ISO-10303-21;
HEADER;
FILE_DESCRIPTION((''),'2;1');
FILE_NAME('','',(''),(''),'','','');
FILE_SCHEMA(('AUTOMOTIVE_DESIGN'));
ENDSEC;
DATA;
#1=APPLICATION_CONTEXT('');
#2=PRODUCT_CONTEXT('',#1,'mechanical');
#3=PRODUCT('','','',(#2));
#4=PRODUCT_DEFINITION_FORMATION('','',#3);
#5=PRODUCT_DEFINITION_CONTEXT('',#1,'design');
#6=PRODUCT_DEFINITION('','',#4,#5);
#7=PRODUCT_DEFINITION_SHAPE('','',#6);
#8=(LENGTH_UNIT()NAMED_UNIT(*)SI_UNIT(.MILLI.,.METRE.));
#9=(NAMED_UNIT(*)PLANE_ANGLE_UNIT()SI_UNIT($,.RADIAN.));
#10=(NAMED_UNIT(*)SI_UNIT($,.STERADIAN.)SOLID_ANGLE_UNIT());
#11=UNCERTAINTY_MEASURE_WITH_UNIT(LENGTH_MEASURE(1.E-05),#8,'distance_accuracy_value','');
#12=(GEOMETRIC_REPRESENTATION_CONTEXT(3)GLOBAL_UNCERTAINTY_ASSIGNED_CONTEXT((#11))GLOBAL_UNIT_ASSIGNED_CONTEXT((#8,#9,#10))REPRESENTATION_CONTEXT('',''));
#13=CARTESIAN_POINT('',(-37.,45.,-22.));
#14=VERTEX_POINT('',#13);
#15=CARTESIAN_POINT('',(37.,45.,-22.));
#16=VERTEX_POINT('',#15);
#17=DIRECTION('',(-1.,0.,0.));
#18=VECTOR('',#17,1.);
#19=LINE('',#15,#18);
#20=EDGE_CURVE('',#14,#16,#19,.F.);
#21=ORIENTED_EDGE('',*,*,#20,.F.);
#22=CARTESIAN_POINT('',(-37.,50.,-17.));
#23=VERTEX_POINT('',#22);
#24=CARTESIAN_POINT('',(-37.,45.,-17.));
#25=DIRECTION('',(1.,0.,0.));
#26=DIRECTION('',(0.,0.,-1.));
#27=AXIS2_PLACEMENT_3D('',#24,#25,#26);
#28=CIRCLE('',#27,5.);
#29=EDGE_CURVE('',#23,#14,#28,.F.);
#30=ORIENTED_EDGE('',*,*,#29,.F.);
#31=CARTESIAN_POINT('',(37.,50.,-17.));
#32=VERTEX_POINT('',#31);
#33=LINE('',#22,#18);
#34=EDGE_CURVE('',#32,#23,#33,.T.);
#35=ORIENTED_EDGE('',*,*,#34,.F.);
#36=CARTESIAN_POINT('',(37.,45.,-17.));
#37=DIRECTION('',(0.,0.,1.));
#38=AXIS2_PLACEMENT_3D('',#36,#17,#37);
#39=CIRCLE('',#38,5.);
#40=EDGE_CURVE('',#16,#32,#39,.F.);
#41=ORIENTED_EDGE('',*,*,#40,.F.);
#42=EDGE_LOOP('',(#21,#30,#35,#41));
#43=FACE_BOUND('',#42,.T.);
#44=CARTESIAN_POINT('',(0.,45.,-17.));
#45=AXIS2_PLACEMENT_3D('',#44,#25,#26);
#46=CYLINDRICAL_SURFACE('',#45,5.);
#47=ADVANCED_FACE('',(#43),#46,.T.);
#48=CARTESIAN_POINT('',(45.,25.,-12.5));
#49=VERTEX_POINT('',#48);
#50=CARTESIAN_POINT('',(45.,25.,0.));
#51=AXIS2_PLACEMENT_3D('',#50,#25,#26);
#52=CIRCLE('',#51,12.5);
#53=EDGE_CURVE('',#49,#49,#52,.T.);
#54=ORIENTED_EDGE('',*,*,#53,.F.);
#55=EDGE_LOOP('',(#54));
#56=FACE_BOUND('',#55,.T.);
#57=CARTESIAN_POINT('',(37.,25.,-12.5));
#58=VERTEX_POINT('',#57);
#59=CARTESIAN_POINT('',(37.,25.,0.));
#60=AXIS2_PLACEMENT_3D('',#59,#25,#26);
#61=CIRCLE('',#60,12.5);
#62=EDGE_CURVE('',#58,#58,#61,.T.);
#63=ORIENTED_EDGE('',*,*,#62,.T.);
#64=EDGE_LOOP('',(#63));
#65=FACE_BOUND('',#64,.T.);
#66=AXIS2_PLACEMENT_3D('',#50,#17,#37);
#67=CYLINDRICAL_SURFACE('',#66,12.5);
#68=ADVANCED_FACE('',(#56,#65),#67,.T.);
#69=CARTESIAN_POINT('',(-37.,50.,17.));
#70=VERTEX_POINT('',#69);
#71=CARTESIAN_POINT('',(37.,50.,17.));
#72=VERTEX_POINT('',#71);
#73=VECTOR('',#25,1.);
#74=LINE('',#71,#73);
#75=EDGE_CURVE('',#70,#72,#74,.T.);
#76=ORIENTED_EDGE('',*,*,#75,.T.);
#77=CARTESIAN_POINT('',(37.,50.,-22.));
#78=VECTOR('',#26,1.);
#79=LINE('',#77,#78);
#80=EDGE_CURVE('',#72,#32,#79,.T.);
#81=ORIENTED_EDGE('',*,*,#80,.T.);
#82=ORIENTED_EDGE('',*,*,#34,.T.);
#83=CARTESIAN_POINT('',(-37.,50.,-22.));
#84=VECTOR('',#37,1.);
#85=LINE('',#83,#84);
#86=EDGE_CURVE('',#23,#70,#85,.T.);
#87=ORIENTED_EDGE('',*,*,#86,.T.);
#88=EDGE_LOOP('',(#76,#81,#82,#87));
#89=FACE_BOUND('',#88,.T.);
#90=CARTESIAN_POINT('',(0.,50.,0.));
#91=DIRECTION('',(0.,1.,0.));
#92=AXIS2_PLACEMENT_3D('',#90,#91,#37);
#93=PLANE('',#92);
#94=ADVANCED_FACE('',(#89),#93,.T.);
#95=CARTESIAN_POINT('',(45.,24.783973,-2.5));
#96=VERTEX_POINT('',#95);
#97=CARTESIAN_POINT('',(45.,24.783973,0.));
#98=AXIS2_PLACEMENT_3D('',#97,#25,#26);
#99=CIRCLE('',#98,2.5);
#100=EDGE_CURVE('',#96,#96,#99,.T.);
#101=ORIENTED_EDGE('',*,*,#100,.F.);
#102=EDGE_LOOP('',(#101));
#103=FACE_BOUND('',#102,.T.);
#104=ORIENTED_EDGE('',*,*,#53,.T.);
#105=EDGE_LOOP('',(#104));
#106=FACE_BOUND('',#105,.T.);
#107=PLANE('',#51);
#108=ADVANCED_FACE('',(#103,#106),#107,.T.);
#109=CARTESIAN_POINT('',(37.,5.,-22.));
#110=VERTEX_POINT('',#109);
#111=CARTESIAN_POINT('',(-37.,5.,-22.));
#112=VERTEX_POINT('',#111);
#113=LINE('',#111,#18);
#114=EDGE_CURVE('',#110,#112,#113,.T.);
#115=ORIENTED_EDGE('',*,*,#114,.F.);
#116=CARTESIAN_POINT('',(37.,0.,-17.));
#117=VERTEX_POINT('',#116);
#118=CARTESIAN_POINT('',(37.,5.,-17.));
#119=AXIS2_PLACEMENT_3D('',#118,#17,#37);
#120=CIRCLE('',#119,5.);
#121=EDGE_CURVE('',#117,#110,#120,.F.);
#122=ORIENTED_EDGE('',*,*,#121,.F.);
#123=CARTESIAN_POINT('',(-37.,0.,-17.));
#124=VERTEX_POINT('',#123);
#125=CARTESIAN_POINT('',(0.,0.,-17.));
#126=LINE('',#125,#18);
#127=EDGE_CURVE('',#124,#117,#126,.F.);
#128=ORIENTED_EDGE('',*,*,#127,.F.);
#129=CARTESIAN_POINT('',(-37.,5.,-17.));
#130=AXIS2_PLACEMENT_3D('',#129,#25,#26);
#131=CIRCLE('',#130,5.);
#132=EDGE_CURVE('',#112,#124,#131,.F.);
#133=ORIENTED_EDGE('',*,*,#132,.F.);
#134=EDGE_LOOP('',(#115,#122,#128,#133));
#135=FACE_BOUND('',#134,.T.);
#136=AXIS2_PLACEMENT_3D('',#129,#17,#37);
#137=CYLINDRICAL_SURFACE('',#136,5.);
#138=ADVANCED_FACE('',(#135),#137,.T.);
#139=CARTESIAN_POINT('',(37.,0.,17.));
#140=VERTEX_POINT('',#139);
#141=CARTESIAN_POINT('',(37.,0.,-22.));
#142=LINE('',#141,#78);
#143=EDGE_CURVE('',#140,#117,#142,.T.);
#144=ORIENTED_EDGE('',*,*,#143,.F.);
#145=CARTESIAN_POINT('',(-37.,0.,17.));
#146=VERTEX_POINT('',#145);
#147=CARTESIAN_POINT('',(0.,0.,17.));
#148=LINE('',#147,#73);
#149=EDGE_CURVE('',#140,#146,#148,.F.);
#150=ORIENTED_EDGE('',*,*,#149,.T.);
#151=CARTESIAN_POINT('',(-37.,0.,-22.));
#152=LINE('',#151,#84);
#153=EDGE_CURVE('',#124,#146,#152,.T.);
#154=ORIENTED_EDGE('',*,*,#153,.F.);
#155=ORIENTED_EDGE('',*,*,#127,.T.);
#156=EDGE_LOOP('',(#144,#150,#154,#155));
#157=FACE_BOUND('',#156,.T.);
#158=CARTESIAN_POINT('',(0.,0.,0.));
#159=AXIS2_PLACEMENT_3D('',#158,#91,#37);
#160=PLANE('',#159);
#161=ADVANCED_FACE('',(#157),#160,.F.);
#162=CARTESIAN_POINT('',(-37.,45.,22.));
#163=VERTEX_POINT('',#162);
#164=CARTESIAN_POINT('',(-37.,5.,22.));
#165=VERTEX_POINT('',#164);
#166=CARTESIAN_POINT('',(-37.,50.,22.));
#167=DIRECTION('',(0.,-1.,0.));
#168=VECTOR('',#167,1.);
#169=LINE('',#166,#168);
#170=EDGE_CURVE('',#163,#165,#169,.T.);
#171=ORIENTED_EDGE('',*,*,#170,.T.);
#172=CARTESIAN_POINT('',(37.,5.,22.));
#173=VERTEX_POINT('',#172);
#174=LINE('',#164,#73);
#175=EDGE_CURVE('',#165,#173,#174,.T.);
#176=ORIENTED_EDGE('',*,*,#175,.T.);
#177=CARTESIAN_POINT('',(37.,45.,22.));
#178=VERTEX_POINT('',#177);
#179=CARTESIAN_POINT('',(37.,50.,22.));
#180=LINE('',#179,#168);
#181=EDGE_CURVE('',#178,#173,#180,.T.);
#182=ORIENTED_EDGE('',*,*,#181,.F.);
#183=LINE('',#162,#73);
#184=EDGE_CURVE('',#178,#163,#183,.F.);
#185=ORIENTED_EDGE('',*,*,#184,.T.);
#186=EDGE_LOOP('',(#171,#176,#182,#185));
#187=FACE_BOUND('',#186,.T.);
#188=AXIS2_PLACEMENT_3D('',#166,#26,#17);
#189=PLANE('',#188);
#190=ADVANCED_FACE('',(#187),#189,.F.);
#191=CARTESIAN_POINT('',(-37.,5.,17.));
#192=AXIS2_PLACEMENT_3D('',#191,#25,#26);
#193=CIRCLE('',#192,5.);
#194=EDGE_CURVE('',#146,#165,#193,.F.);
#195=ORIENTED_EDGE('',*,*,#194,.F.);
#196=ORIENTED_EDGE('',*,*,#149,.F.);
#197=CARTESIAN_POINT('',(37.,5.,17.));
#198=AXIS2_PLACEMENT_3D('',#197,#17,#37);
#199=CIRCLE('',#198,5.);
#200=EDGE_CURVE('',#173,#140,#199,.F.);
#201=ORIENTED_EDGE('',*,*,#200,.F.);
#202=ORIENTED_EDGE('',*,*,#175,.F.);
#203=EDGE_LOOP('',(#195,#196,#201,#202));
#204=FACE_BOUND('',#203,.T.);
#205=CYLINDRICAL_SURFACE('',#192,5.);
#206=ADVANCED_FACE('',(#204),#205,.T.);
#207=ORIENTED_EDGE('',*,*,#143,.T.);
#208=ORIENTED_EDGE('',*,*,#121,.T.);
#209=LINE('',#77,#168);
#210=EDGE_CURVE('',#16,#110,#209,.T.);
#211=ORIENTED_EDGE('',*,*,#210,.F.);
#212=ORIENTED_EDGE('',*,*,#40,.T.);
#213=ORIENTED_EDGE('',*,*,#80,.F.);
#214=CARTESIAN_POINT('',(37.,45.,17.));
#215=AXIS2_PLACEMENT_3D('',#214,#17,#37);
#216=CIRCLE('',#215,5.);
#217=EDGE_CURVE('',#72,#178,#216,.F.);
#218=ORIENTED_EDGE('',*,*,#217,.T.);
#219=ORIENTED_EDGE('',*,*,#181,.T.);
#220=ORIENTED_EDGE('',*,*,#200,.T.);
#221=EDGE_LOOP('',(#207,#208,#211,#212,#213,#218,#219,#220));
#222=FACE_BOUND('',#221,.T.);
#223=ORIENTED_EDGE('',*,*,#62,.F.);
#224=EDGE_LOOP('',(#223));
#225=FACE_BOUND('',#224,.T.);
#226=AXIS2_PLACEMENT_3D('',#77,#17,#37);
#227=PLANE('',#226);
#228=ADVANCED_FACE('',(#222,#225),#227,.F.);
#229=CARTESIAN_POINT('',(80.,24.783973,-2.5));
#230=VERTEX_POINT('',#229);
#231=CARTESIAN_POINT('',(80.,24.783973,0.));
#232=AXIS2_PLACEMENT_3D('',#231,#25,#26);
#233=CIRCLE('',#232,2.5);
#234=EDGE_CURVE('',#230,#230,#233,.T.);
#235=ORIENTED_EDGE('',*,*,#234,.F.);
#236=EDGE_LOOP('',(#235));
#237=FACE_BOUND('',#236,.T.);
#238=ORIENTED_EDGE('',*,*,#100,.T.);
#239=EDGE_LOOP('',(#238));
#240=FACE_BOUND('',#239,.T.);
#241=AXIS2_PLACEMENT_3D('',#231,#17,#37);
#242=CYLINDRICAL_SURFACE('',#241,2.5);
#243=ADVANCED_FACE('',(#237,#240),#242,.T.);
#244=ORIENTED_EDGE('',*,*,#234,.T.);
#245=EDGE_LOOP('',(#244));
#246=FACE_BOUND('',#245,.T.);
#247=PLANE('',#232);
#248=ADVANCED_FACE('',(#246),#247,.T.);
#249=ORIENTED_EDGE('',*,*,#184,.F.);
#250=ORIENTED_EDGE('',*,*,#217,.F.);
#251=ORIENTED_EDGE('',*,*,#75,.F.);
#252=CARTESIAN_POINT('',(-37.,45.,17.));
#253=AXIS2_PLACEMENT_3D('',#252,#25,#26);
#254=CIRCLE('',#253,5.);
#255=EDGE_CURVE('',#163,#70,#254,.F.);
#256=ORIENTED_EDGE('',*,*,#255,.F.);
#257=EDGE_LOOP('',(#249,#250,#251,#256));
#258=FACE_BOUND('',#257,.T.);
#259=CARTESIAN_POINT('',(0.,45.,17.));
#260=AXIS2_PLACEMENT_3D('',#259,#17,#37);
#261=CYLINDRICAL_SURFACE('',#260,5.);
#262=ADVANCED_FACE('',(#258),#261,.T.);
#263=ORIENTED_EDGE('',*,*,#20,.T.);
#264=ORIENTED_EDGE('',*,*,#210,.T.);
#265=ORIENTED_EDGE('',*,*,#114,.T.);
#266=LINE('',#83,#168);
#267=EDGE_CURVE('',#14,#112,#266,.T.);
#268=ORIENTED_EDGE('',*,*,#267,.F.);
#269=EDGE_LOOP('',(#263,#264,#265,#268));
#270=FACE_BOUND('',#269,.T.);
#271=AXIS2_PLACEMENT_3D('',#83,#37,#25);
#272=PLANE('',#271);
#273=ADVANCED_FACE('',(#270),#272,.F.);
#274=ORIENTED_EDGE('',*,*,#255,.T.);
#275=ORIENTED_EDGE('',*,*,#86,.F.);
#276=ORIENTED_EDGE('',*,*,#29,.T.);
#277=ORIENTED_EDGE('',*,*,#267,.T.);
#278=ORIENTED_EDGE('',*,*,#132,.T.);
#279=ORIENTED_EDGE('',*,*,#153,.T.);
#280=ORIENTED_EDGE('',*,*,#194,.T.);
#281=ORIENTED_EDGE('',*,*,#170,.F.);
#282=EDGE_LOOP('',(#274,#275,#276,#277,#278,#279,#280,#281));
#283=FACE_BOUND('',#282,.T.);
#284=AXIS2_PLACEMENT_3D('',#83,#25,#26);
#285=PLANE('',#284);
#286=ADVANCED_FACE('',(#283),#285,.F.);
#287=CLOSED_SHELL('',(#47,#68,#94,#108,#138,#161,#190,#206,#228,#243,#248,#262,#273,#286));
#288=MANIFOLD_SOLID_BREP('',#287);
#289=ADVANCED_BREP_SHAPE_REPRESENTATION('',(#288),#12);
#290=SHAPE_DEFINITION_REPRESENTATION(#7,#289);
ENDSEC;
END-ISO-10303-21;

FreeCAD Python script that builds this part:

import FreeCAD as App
import Part
import Sketcher
from FreeCAD import Vector
Q = App.Units.Quantity


def edges_at(feature, points):
    """Names of the edges that pass closest to the given points."""
    edges = feature.Shape.Edges
    near = lambda p: min(range(len(edges)), key=lambda i: edges[i].distToShape(Part.Vertex(*p))[0])
    return sorted({f"Edge{near(p) + 1}" for p in points})


def add_polygon(sketch, points):
    """Adds a closed chain of lines whose ends are joined by coincident constraints."""
    first, n = sketch.GeometryCount, len(points)
    for a, b in zip(points, points[1:] + points[:1]):
        sketch.addGeometry(Part.LineSegment(App.Vector(*a, 0), App.Vector(*b, 0)), False)
    for i in range(n):
        sketch.addConstraint(Sketcher.Constraint("Coincident", first + i, 2, first + (i + 1) % n, 1))

doc = App.newDocument("Part")
body = doc.addObject("PartDesign::Body", "Body")

sketch1 = body.newObject("Sketcher::SketchObject", "Sketch")
sketch1.AttachmentSupport = (doc.getObject("XZ_Plane"), [""])
sketch1.MapMode = "FlatFace"
add_polygon(sketch1, [(-37, -22), (-37, 22), (37, 22), (37, -22)])
sketch1.addConstraint(Sketcher.Constraint("Vertical", 0))
sketch1.addConstraint(Sketcher.Constraint("Horizontal", 1))
sketch1.addConstraint(Sketcher.Constraint("Vertical", 2))
sketch1.addConstraint(Sketcher.Constraint("Horizontal", 3))
sketch1.addConstraint(Sketcher.Constraint("Symmetric", 0, 2, 2, 2, -1, 1))
sketch1.addConstraint(Sketcher.Constraint("DistanceX", 1, 1, 1, 2, Q("74 mm")))
sketch1.addConstraint(Sketcher.Constraint("DistanceY", 0, 1, 0, 2, Q("44 mm")))
pad1 = body.newObject("PartDesign::Pad", "Pad")
pad1.Profile = sketch1
pad1.Length = 50
pad1.Reversed = True

sketch2 = body.newObject("Sketcher::SketchObject", "Sketch001")
sketch2.AttachmentSupport = (doc.getObject("YZ_Plane"), [""])
sketch2.MapMode = "FlatFace"
sketch2.AttachmentOffset = App.Placement(Vector(0, 0, 37), App.Rotation())
sketch2.addGeometry(Part.Circle(Vector(25, 0, 0), Vector(0, 0, 1), 12), False)
sketch2.addConstraint(Sketcher.Constraint("PointOnObject", 0, 3, -1))
sketch2.addConstraint(Sketcher.Constraint("Diameter", 0, Q("25 mm")))
sketch2.addConstraint(Sketcher.Constraint("DistanceX", -1, 1, 0, 3, Q("25 mm")))
pad2 = body.newObject("PartDesign::Pad", "Pad001")
pad2.Profile = sketch2
pad2.Length = 8

sketch3 = body.newObject("Sketcher::SketchObject", "Sketch002")
sketch3.AttachmentSupport = (doc.getObject("YZ_Plane"), [""])
sketch3.MapMode = "FlatFace"
sketch3.AttachmentOffset = App.Placement(Vector(0, 0, 45), App.Rotation())
sketch3.addGeometry(Part.Circle(Vector(24.8, 0, 0), Vector(0, 0, 1), 2.5), False)
sketch3.addConstraint(Sketcher.Constraint("PointOnObject", 0, 3, -1))
sketch3.addConstraint(Sketcher.Constraint("Diameter", 0, Q("5 mm")))
sketch3.addConstraint(Sketcher.Constraint("DistanceX", -1, 1, 0, 3, Q("24.783973 mm")))
pad3 = body.newObject("PartDesign::Pad", "Pad002")
pad3.Profile = sketch3
pad3.Length = 35
doc.recompute()

fillet = body.newObject("PartDesign::Fillet", "Fillet")
fillet.Base = (pad3, edges_at(pad3, [
    (0, 50, 22),
    (0, 0, 22),
    (0, 0, -22),
    (0, 50, -22),
]))
fillet.Radius = 5

doc.recompute()
